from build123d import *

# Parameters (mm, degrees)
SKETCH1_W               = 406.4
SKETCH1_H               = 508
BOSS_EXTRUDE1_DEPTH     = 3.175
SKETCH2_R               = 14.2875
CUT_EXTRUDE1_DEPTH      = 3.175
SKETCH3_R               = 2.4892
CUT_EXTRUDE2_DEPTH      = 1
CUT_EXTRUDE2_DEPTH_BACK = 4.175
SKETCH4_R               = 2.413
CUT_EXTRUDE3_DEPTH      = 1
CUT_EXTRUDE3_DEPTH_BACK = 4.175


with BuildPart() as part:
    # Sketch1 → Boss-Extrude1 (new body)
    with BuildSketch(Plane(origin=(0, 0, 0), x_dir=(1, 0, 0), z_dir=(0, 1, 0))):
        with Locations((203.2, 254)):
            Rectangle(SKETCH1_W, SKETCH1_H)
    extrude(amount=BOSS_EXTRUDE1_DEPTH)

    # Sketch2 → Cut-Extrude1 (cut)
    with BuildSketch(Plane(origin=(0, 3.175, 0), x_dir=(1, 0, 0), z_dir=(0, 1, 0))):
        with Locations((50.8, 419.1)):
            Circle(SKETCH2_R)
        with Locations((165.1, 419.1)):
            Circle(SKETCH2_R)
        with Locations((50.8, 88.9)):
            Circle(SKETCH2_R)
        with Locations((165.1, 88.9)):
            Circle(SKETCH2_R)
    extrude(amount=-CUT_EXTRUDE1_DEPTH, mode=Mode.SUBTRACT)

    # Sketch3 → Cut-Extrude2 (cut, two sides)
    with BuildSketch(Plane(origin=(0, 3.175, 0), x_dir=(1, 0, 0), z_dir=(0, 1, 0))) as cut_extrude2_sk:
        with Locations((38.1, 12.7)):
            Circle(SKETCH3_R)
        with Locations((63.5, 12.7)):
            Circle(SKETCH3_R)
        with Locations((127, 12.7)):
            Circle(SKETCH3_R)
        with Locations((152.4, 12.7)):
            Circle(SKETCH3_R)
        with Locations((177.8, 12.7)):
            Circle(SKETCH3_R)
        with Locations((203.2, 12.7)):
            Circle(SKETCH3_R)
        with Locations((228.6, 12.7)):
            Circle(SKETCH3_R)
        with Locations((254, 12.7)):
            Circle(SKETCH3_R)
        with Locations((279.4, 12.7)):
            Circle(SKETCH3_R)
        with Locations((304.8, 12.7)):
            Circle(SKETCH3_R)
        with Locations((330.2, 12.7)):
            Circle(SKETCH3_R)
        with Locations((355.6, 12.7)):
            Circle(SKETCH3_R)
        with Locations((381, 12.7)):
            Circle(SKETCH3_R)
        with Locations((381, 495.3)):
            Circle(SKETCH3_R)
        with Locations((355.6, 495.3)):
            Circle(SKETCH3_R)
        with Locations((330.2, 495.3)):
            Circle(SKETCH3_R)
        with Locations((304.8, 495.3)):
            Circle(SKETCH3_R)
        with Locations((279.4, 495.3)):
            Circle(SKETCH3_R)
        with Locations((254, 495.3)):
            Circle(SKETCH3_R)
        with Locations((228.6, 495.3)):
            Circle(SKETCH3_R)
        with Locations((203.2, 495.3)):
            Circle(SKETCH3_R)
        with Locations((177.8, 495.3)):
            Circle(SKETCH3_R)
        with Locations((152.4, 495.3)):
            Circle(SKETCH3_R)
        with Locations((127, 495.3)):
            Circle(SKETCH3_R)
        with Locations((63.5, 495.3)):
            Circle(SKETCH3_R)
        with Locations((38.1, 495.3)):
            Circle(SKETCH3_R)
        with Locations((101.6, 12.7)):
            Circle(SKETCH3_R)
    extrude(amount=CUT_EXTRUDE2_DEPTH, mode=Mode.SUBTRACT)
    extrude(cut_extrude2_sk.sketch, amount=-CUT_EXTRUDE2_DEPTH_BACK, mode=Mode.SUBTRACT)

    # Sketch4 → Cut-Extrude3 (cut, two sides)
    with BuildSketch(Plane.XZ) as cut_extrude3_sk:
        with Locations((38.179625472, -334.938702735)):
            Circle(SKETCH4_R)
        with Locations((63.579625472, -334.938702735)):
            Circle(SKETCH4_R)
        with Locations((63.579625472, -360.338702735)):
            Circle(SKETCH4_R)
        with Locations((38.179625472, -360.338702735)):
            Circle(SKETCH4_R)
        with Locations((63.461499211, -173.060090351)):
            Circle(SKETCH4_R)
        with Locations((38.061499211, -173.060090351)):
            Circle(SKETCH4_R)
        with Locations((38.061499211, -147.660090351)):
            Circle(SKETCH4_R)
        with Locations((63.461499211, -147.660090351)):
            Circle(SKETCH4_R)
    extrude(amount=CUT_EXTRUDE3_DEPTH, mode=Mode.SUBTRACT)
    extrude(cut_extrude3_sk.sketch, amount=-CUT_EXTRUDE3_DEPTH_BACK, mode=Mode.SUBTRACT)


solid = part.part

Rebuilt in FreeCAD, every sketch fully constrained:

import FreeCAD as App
import Part
import Sketcher
from FreeCAD import Vector
Q = App.Units.Quantity


def add_polygon(sketch, points):
    """Adds a closed chain of lines whose ends are joined by coincident constraints."""
    first, n = sketch.GeometryCount, len(points)
    for a, b in zip(points, points[1:] + points[:1]):
        sketch.addGeometry(Part.LineSegment(App.Vector(*a, 0), App.Vector(*b, 0)), False)
    for i in range(n):
        sketch.addConstraint(Sketcher.Constraint("Coincident", first + i, 2, first + (i + 1) % n, 1))

doc = App.newDocument("Part")
body = doc.addObject("PartDesign::Body", "Body")

# Sketch on XZ plane
sketch1 = body.newObject("Sketcher::SketchObject", "Sketch")
sketch1.AttachmentSupport = (doc.getObject("XZ_Plane"), [""])
sketch1.MapMode = "FlatFace"
add_polygon(sketch1, [(0, -508), (0, 0), (406.4, 0), (406.4, -508)])  # lines 0-3
sketch1.addConstraint([
    Sketcher.Constraint("Vertical", 0),
    Sketcher.Constraint("Horizontal", 1),
    Sketcher.Constraint("Vertical", 2),
    Sketcher.Constraint("Horizontal", 3),
    Sketcher.Constraint("Coincident", 0, 2, -1, 1),
    Sketcher.Constraint("DistanceX", 1, 1, 1, 2, Q("16 in")),
    Sketcher.Constraint("DistanceY", 0, 1, 0, 2, Q("20 in")),
])
pad1 = body.newObject("PartDesign::Pad", "Pad")
pad1.Profile = sketch1
pad1.Length = Q("0.125 in")
pad1.Reversed = True

# Sketch on XZ plane
sketch2 = body.newObject("Sketcher::SketchObject", "Sketch001")
sketch2.AttachmentSupport = (doc.getObject("XZ_Plane"), [""])
sketch2.MapMode = "FlatFace"
sketch2.AttachmentOffset = App.Placement(Vector(0, 0, -0.125 * 25.4), App.Rotation())
sketch2.addGeometry([
    Part.Circle(Vector(50.8, -419.1, 0), Vector(0, 0, 1), 14.2875),
    Part.Circle(Vector(165.1, -419.1, 0), Vector(0, 0, 1), 14.2875),
    Part.Circle(Vector(50.8, -88.9, 0), Vector(0, 0, 1), 14.2875),
    Part.Circle(Vector(165.1, -88.9, 0), Vector(0, 0, 1), 14.2875),
], False)
sketch2.addConstraint([
    Sketcher.Constraint("Equal", 0, 1),
    Sketcher.Constraint("Equal", 1, 2),
    Sketcher.Constraint("Equal", 2, 3),
    Sketcher.Constraint("Horizontal", 0, 3, 1, 3),
    Sketcher.Constraint("Horizontal", 2, 3, 3, 3),
    Sketcher.Constraint("Vertical", 0, 3, 2, 3),
    Sketcher.Constraint("Vertical", 1, 3, 3, 3),
    Sketcher.Constraint("Diameter", 0, Q("1.125 in")),
    Sketcher.Constraint("DistanceX", -1, 1, 0, 3, Q("2 in")),
    Sketcher.Constraint("DistanceY", 0, 3, 2, 3, Q("13 in")),
    Sketcher.Constraint("DistanceY", 0, 3, -1, 1, Q("16.5 in")),
    Sketcher.Constraint("DistanceX", -1, 1, 1, 3, Q("6.5 in")),
])
pocket1 = body.newObject("PartDesign::Pocket", "Pocket")
pocket1.Profile = sketch2
pocket1.Length = Q("0.125 in")
pocket1.Reversed = True

# Sketch on XZ plane
sketch3 = body.newObject("Sketcher::SketchObject", "Sketch002")
sketch3.AttachmentSupport = (doc.getObject("XZ_Plane"), [""])
sketch3.MapMode = "FlatFace"
sketch3.AttachmentOffset = App.Placement(Vector(0, 0, -0.125 * 25.4), App.Rotation())
sketch3.addGeometry([
    Part.Circle(Vector(38.1, -12.7, 0), Vector(0, 0, 1), 2.4892),  # 0
    Part.Circle(Vector(63.5, -12.7, 0), Vector(0, 0, 1), 2.4892),  # 1
    Part.Circle(Vector(127, -12.7, 0), Vector(0, 0, 1), 2.4892),  # 2
    Part.Circle(Vector(152.4, -12.7, 0), Vector(0, 0, 1), 2.4892),  # 3
    Part.Circle(Vector(177.8, -12.7, 0), Vector(0, 0, 1), 2.4892),  # 4
    Part.Circle(Vector(203.2, -12.7, 0), Vector(0, 0, 1), 2.4892),  # 5
    Part.Circle(Vector(228.6, -12.7, 0), Vector(0, 0, 1), 2.4892),  # 6
    Part.Circle(Vector(254, -12.7, 0), Vector(0, 0, 1), 2.4892),  # 7
    Part.Circle(Vector(279.4, -12.7, 0), Vector(0, 0, 1), 2.4892),  # 8
    Part.Circle(Vector(304.8, -12.7, 0), Vector(0, 0, 1), 2.4892),  # 9
    Part.Circle(Vector(330.2, -12.7, 0), Vector(0, 0, 1), 2.4892),  # 10
    Part.Circle(Vector(355.6, -12.7, 0), Vector(0, 0, 1), 2.4892),  # 11
    Part.Circle(Vector(381, -12.7, 0), Vector(0, 0, 1), 2.4892),  # 12
    Part.Circle(Vector(381, -495.3, 0), Vector(0, 0, 1), 2.4892),  # 13
    Part.Circle(Vector(355.6, -495.3, 0), Vector(0, 0, 1), 2.4892),  # 14
    Part.Circle(Vector(330.2, -495.3, 0), Vector(0, 0, 1), 2.4892),  # 15
    Part.Circle(Vector(304.8, -495.3, 0), Vector(0, 0, 1), 2.4892),  # 16
    Part.Circle(Vector(279.4, -495.3, 0), Vector(0, 0, 1), 2.4892),  # 17
    Part.Circle(Vector(254, -495.3, 0), Vector(0, 0, 1), 2.4892),  # 18
    Part.Circle(Vector(228.6, -495.3, 0), Vector(0, 0, 1), 2.4892),  # 19
    Part.Circle(Vector(203.2, -495.3, 0), Vector(0, 0, 1), 2.4892),  # 20
    Part.Circle(Vector(177.8, -495.3, 0), Vector(0, 0, 1), 2.4892),  # 21
    Part.Circle(Vector(152.4, -495.3, 0), Vector(0, 0, 1), 2.4892),  # 22
    Part.Circle(Vector(127, -495.3, 0), Vector(0, 0, 1), 2.4892),  # 23
    Part.Circle(Vector(63.5, -495.3, 0), Vector(0, 0, 1), 2.4892),  # 24
    Part.Circle(Vector(38.1, -495.3, 0), Vector(0, 0, 1), 2.4892),  # 25
    Part.Circle(Vector(101.6, -12.7, 0), Vector(0, 0, 1), 2.4892),  # 26
], False)
sketch3.addConstraint([
    Sketcher.Constraint("Equal", 0, 1),
    Sketcher.Constraint("Equal", 1, 2),
    Sketcher.Constraint("Equal", 2, 3),
    Sketcher.Constraint("Equal", 3, 4),
    Sketcher.Constraint("Equal", 4, 5),
    Sketcher.Constraint("Equal", 5, 6),
    Sketcher.Constraint("Equal", 6, 7),
    Sketcher.Constraint("Equal", 7, 8),
    Sketcher.Constraint("Equal", 8, 9),
    Sketcher.Constraint("Equal", 9, 10),
    Sketcher.Constraint("Equal", 10, 11),
    Sketcher.Constraint("Equal", 11, 12),
    Sketcher.Constraint("Equal", 12, 13),
    Sketcher.Constraint("Equal", 13, 14),
    Sketcher.Constraint("Equal", 14, 15),
    Sketcher.Constraint("Equal", 15, 16),
    Sketcher.Constraint("Equal", 16, 17),
    Sketcher.Constraint("Equal", 17, 18),
    Sketcher.Constraint("Equal", 18, 19),
    Sketcher.Constraint("Equal", 19, 20),
    Sketcher.Constraint("Equal", 20, 21),
    Sketcher.Constraint("Equal", 21, 22),
    Sketcher.Constraint("Equal", 22, 23),
    Sketcher.Constraint("Equal", 23, 24),
    Sketcher.Constraint("Equal", 24, 25),
    Sketcher.Constraint("Equal", 25, 26),
    Sketcher.Constraint("Horizontal", 0, 3, 1, 3),
    Sketcher.Constraint("Horizontal", 1, 3, 2, 3),
    Sketcher.Constraint("Horizontal", 2, 3, 3, 3),
    Sketcher.Constraint("Horizontal", 3, 3, 4, 3),
    Sketcher.Constraint("Horizontal", 4, 3, 5, 3),
    Sketcher.Constraint("Horizontal", 5, 3, 6, 3),
    Sketcher.Constraint("Horizontal", 6, 3, 7, 3),
    Sketcher.Constraint("Horizontal", 7, 3, 8, 3),
    Sketcher.Constraint("Horizontal", 8, 3, 9, 3),
    Sketcher.Constraint("Horizontal", 9, 3, 10, 3),
    Sketcher.Constraint("Horizontal", 10, 3, 11, 3),
    Sketcher.Constraint("Horizontal", 11, 3, 12, 3),
    Sketcher.Constraint("Horizontal", 13, 3, 14, 3),
    Sketcher.Constraint("Horizontal", 14, 3, 15, 3),
    Sketcher.Constraint("Horizontal", 15, 3, 16, 3),
    Sketcher.Constraint("Horizontal", 16, 3, 17, 3),
    Sketcher.Constraint("Horizontal", 17, 3, 18, 3),
    Sketcher.Constraint("Horizontal", 18, 3, 19, 3),
    Sketcher.Constraint("Horizontal", 19, 3, 20, 3),
    Sketcher.Constraint("Horizontal", 20, 3, 21, 3),
    Sketcher.Constraint("Horizontal", 21, 3, 22, 3),
    Sketcher.Constraint("Horizontal", 22, 3, 23, 3),
    Sketcher.Constraint("Horizontal", 23, 3, 24, 3),
    Sketcher.Constraint("Horizontal", 24, 3, 25, 3),
    Sketcher.Constraint("Horizontal", 12, 3, 26, 3),
    Sketcher.Constraint("Vertical", 12, 3, 13, 3),
    Sketcher.Constraint("Vertical", 11, 3, 14, 3),
    Sketcher.Constraint("Vertical", 10, 3, 15, 3),
    Sketcher.Constraint("Vertical", 9, 3, 16, 3),
    Sketcher.Constraint("Vertical", 8, 3, 17, 3),
    Sketcher.Constraint("Vertical", 7, 3, 18, 3),
    Sketcher.Constraint("Vertical", 6, 3, 19, 3),
    Sketcher.Constraint("Vertical", 5, 3, 20, 3),
    Sketcher.Constraint("Vertical", 4, 3, 21, 3),
    Sketcher.Constraint("Vertical", 3, 3, 22, 3),
    Sketcher.Constraint("Vertical", 2, 3, 23, 3),
    Sketcher.Constraint("Vertical", 1, 3, 24, 3),
    Sketcher.Constraint("Vertical", 0, 3, 25, 3),
    Sketcher.Constraint("Diameter", 0, Q("0.196 in")),
    Sketcher.Constraint("DistanceX", -1, 1, 2, 3, Q("5 in")),
    Sketcher.Constraint("DistanceX", -1, 1, 3, 3, Q("6 in")),
    Sketcher.Constraint("DistanceX", -1, 1, 4, 3, Q("7 in")),
    Sketcher.Constraint("DistanceX", -1, 1, 5, 3, Q("8 in")),
    Sketcher.Constraint("DistanceX", -1, 1, 6, 3, Q("9 in")),
    Sketcher.Constraint("DistanceX", -1, 1, 7, 3, Q("10 in")),
    Sketcher.Constraint("DistanceX", -1, 1, 8, 3, Q("11 in")),
    Sketcher.Constraint("DistanceX", -1, 1, 9, 3, Q("12 in")),
    Sketcher.Constraint("DistanceX", -1, 1, 10, 3, Q("13 in")),
    Sketcher.Constraint("DistanceX", -1, 1, 11, 3, Q("14 in")),
    Sketcher.Constraint("DistanceX", -1, 1, 12, 3, Q("15 in")),
    Sketcher.Constraint("DistanceX", -1, 1, 26, 3, Q("4 in")),
    Sketcher.Constraint("DistanceX", 0, 3, 1, 3, Q("1 in")),
    Sketcher.Constraint("DistanceY", 13, 3, 12, 3, Q("19 in")),
    Sketcher.Constraint("DistanceX", -1, 1, 0, 3, Q("1.5 in")),
    Sketcher.Constraint("DistanceY", 0, 3, -1, 1, Q("0.5 in")),
])
pocket2 = body.newObject("PartDesign::Pocket", "Pocket001")
pocket2.Profile = sketch3
pocket2.Type = "ThroughAll"
pocket2.Midplane = True

# Sketch on XZ plane
sketch4 = body.newObject("Sketcher::SketchObject", "Sketch003")
sketch4.AttachmentSupport = (doc.getObject("XZ_Plane"), [""])
sketch4.MapMode = "FlatFace"
sketch4.addGeometry([
    Part.Circle(Vector(38.179625, -334.938703, 0), Vector(0, 0, 1), 2.413),  # 0
    Part.Circle(Vector(63.579625, -334.938703, 0), Vector(0, 0, 1), 2.413),  # 1
    Part.Circle(Vector(63.579625, -360.338703, 0), Vector(0, 0, 1), 2.413),  # 2
    Part.Circle(Vector(38.179625, -360.338703, 0), Vector(0, 0, 1), 2.413),  # 3
    Part.Circle(Vector(63.461499, -173.06009, 0), Vector(0, 0, 1), 2.413),  # 4
    Part.Circle(Vector(38.061499, -173.06009, 0), Vector(0, 0, 1), 2.413),  # 5
    Part.Circle(Vector(38.061499, -147.66009, 0), Vector(0, 0, 1), 2.413),  # 6
    Part.Circle(Vector(63.461499, -147.66009, 0), Vector(0, 0, 1), 2.413),  # 7
], False)
sketch4.addConstraint([
    Sketcher.Constraint("Equal", 0, 1),
    Sketcher.Constraint("Equal", 1, 2),
    Sketcher.Constraint("Equal", 2, 3),
    Sketcher.Constraint("Equal", 3, 4),
    Sketcher.Constraint("Equal", 4, 5),
    Sketcher.Constraint("Equal", 5, 6),
    Sketcher.Constraint("Equal", 6, 7),
    Sketcher.Constraint("Horizontal", 0, 3, 1, 3),
    Sketcher.Constraint("Horizontal", 2, 3, 3, 3),
    Sketcher.Constraint("Horizontal", 4, 3, 5, 3),
    Sketcher.Constraint("Horizontal", 6, 3, 7, 3),
    Sketcher.Constraint("Vertical", 1, 3, 2, 3),
    Sketcher.Constraint("Vertical", 0, 3, 3, 3),
    Sketcher.Constraint("Vertical", 5, 3, 6, 3),
    Sketcher.Constraint("Vertical", 4, 3, 7, 3),
    Sketcher.Constraint("Diameter", 0, Q("0.19 in")),
    Sketcher.Constraint("DistanceX", 0, 3, 1, 3, Q("1 in")),
    Sketcher.Constraint("DistanceY", 2, 3, 1, 3, Q("1 in")),
    Sketcher.Constraint("DistanceX", 5, 3, 4, 3, Q("1 in")),
    Sketcher.Constraint("DistanceY", 5, 3, 6, 3, Q("1 in")),
    Sketcher.Constraint("DistanceX", -1, 1, 4, 3, Q("63.461499 mm")),
    Sketcher.Constraint("DistanceY", 4, 3, -1, 1, Q("173.06009 mm")),
    Sketcher.Constraint("DistanceX", -1, 1, 0, 3, Q("38.179625 mm")),
    Sketcher.Constraint("DistanceY", 0, 3, -1, 1, Q("334.938703 mm")),
])
pocket3 = body.newObject("PartDesign::Pocket", "Pocket002")
pocket3.Profile = sketch4
pocket3.Type = "ThroughAll"
pocket3.Midplane = True

doc.recompute()
